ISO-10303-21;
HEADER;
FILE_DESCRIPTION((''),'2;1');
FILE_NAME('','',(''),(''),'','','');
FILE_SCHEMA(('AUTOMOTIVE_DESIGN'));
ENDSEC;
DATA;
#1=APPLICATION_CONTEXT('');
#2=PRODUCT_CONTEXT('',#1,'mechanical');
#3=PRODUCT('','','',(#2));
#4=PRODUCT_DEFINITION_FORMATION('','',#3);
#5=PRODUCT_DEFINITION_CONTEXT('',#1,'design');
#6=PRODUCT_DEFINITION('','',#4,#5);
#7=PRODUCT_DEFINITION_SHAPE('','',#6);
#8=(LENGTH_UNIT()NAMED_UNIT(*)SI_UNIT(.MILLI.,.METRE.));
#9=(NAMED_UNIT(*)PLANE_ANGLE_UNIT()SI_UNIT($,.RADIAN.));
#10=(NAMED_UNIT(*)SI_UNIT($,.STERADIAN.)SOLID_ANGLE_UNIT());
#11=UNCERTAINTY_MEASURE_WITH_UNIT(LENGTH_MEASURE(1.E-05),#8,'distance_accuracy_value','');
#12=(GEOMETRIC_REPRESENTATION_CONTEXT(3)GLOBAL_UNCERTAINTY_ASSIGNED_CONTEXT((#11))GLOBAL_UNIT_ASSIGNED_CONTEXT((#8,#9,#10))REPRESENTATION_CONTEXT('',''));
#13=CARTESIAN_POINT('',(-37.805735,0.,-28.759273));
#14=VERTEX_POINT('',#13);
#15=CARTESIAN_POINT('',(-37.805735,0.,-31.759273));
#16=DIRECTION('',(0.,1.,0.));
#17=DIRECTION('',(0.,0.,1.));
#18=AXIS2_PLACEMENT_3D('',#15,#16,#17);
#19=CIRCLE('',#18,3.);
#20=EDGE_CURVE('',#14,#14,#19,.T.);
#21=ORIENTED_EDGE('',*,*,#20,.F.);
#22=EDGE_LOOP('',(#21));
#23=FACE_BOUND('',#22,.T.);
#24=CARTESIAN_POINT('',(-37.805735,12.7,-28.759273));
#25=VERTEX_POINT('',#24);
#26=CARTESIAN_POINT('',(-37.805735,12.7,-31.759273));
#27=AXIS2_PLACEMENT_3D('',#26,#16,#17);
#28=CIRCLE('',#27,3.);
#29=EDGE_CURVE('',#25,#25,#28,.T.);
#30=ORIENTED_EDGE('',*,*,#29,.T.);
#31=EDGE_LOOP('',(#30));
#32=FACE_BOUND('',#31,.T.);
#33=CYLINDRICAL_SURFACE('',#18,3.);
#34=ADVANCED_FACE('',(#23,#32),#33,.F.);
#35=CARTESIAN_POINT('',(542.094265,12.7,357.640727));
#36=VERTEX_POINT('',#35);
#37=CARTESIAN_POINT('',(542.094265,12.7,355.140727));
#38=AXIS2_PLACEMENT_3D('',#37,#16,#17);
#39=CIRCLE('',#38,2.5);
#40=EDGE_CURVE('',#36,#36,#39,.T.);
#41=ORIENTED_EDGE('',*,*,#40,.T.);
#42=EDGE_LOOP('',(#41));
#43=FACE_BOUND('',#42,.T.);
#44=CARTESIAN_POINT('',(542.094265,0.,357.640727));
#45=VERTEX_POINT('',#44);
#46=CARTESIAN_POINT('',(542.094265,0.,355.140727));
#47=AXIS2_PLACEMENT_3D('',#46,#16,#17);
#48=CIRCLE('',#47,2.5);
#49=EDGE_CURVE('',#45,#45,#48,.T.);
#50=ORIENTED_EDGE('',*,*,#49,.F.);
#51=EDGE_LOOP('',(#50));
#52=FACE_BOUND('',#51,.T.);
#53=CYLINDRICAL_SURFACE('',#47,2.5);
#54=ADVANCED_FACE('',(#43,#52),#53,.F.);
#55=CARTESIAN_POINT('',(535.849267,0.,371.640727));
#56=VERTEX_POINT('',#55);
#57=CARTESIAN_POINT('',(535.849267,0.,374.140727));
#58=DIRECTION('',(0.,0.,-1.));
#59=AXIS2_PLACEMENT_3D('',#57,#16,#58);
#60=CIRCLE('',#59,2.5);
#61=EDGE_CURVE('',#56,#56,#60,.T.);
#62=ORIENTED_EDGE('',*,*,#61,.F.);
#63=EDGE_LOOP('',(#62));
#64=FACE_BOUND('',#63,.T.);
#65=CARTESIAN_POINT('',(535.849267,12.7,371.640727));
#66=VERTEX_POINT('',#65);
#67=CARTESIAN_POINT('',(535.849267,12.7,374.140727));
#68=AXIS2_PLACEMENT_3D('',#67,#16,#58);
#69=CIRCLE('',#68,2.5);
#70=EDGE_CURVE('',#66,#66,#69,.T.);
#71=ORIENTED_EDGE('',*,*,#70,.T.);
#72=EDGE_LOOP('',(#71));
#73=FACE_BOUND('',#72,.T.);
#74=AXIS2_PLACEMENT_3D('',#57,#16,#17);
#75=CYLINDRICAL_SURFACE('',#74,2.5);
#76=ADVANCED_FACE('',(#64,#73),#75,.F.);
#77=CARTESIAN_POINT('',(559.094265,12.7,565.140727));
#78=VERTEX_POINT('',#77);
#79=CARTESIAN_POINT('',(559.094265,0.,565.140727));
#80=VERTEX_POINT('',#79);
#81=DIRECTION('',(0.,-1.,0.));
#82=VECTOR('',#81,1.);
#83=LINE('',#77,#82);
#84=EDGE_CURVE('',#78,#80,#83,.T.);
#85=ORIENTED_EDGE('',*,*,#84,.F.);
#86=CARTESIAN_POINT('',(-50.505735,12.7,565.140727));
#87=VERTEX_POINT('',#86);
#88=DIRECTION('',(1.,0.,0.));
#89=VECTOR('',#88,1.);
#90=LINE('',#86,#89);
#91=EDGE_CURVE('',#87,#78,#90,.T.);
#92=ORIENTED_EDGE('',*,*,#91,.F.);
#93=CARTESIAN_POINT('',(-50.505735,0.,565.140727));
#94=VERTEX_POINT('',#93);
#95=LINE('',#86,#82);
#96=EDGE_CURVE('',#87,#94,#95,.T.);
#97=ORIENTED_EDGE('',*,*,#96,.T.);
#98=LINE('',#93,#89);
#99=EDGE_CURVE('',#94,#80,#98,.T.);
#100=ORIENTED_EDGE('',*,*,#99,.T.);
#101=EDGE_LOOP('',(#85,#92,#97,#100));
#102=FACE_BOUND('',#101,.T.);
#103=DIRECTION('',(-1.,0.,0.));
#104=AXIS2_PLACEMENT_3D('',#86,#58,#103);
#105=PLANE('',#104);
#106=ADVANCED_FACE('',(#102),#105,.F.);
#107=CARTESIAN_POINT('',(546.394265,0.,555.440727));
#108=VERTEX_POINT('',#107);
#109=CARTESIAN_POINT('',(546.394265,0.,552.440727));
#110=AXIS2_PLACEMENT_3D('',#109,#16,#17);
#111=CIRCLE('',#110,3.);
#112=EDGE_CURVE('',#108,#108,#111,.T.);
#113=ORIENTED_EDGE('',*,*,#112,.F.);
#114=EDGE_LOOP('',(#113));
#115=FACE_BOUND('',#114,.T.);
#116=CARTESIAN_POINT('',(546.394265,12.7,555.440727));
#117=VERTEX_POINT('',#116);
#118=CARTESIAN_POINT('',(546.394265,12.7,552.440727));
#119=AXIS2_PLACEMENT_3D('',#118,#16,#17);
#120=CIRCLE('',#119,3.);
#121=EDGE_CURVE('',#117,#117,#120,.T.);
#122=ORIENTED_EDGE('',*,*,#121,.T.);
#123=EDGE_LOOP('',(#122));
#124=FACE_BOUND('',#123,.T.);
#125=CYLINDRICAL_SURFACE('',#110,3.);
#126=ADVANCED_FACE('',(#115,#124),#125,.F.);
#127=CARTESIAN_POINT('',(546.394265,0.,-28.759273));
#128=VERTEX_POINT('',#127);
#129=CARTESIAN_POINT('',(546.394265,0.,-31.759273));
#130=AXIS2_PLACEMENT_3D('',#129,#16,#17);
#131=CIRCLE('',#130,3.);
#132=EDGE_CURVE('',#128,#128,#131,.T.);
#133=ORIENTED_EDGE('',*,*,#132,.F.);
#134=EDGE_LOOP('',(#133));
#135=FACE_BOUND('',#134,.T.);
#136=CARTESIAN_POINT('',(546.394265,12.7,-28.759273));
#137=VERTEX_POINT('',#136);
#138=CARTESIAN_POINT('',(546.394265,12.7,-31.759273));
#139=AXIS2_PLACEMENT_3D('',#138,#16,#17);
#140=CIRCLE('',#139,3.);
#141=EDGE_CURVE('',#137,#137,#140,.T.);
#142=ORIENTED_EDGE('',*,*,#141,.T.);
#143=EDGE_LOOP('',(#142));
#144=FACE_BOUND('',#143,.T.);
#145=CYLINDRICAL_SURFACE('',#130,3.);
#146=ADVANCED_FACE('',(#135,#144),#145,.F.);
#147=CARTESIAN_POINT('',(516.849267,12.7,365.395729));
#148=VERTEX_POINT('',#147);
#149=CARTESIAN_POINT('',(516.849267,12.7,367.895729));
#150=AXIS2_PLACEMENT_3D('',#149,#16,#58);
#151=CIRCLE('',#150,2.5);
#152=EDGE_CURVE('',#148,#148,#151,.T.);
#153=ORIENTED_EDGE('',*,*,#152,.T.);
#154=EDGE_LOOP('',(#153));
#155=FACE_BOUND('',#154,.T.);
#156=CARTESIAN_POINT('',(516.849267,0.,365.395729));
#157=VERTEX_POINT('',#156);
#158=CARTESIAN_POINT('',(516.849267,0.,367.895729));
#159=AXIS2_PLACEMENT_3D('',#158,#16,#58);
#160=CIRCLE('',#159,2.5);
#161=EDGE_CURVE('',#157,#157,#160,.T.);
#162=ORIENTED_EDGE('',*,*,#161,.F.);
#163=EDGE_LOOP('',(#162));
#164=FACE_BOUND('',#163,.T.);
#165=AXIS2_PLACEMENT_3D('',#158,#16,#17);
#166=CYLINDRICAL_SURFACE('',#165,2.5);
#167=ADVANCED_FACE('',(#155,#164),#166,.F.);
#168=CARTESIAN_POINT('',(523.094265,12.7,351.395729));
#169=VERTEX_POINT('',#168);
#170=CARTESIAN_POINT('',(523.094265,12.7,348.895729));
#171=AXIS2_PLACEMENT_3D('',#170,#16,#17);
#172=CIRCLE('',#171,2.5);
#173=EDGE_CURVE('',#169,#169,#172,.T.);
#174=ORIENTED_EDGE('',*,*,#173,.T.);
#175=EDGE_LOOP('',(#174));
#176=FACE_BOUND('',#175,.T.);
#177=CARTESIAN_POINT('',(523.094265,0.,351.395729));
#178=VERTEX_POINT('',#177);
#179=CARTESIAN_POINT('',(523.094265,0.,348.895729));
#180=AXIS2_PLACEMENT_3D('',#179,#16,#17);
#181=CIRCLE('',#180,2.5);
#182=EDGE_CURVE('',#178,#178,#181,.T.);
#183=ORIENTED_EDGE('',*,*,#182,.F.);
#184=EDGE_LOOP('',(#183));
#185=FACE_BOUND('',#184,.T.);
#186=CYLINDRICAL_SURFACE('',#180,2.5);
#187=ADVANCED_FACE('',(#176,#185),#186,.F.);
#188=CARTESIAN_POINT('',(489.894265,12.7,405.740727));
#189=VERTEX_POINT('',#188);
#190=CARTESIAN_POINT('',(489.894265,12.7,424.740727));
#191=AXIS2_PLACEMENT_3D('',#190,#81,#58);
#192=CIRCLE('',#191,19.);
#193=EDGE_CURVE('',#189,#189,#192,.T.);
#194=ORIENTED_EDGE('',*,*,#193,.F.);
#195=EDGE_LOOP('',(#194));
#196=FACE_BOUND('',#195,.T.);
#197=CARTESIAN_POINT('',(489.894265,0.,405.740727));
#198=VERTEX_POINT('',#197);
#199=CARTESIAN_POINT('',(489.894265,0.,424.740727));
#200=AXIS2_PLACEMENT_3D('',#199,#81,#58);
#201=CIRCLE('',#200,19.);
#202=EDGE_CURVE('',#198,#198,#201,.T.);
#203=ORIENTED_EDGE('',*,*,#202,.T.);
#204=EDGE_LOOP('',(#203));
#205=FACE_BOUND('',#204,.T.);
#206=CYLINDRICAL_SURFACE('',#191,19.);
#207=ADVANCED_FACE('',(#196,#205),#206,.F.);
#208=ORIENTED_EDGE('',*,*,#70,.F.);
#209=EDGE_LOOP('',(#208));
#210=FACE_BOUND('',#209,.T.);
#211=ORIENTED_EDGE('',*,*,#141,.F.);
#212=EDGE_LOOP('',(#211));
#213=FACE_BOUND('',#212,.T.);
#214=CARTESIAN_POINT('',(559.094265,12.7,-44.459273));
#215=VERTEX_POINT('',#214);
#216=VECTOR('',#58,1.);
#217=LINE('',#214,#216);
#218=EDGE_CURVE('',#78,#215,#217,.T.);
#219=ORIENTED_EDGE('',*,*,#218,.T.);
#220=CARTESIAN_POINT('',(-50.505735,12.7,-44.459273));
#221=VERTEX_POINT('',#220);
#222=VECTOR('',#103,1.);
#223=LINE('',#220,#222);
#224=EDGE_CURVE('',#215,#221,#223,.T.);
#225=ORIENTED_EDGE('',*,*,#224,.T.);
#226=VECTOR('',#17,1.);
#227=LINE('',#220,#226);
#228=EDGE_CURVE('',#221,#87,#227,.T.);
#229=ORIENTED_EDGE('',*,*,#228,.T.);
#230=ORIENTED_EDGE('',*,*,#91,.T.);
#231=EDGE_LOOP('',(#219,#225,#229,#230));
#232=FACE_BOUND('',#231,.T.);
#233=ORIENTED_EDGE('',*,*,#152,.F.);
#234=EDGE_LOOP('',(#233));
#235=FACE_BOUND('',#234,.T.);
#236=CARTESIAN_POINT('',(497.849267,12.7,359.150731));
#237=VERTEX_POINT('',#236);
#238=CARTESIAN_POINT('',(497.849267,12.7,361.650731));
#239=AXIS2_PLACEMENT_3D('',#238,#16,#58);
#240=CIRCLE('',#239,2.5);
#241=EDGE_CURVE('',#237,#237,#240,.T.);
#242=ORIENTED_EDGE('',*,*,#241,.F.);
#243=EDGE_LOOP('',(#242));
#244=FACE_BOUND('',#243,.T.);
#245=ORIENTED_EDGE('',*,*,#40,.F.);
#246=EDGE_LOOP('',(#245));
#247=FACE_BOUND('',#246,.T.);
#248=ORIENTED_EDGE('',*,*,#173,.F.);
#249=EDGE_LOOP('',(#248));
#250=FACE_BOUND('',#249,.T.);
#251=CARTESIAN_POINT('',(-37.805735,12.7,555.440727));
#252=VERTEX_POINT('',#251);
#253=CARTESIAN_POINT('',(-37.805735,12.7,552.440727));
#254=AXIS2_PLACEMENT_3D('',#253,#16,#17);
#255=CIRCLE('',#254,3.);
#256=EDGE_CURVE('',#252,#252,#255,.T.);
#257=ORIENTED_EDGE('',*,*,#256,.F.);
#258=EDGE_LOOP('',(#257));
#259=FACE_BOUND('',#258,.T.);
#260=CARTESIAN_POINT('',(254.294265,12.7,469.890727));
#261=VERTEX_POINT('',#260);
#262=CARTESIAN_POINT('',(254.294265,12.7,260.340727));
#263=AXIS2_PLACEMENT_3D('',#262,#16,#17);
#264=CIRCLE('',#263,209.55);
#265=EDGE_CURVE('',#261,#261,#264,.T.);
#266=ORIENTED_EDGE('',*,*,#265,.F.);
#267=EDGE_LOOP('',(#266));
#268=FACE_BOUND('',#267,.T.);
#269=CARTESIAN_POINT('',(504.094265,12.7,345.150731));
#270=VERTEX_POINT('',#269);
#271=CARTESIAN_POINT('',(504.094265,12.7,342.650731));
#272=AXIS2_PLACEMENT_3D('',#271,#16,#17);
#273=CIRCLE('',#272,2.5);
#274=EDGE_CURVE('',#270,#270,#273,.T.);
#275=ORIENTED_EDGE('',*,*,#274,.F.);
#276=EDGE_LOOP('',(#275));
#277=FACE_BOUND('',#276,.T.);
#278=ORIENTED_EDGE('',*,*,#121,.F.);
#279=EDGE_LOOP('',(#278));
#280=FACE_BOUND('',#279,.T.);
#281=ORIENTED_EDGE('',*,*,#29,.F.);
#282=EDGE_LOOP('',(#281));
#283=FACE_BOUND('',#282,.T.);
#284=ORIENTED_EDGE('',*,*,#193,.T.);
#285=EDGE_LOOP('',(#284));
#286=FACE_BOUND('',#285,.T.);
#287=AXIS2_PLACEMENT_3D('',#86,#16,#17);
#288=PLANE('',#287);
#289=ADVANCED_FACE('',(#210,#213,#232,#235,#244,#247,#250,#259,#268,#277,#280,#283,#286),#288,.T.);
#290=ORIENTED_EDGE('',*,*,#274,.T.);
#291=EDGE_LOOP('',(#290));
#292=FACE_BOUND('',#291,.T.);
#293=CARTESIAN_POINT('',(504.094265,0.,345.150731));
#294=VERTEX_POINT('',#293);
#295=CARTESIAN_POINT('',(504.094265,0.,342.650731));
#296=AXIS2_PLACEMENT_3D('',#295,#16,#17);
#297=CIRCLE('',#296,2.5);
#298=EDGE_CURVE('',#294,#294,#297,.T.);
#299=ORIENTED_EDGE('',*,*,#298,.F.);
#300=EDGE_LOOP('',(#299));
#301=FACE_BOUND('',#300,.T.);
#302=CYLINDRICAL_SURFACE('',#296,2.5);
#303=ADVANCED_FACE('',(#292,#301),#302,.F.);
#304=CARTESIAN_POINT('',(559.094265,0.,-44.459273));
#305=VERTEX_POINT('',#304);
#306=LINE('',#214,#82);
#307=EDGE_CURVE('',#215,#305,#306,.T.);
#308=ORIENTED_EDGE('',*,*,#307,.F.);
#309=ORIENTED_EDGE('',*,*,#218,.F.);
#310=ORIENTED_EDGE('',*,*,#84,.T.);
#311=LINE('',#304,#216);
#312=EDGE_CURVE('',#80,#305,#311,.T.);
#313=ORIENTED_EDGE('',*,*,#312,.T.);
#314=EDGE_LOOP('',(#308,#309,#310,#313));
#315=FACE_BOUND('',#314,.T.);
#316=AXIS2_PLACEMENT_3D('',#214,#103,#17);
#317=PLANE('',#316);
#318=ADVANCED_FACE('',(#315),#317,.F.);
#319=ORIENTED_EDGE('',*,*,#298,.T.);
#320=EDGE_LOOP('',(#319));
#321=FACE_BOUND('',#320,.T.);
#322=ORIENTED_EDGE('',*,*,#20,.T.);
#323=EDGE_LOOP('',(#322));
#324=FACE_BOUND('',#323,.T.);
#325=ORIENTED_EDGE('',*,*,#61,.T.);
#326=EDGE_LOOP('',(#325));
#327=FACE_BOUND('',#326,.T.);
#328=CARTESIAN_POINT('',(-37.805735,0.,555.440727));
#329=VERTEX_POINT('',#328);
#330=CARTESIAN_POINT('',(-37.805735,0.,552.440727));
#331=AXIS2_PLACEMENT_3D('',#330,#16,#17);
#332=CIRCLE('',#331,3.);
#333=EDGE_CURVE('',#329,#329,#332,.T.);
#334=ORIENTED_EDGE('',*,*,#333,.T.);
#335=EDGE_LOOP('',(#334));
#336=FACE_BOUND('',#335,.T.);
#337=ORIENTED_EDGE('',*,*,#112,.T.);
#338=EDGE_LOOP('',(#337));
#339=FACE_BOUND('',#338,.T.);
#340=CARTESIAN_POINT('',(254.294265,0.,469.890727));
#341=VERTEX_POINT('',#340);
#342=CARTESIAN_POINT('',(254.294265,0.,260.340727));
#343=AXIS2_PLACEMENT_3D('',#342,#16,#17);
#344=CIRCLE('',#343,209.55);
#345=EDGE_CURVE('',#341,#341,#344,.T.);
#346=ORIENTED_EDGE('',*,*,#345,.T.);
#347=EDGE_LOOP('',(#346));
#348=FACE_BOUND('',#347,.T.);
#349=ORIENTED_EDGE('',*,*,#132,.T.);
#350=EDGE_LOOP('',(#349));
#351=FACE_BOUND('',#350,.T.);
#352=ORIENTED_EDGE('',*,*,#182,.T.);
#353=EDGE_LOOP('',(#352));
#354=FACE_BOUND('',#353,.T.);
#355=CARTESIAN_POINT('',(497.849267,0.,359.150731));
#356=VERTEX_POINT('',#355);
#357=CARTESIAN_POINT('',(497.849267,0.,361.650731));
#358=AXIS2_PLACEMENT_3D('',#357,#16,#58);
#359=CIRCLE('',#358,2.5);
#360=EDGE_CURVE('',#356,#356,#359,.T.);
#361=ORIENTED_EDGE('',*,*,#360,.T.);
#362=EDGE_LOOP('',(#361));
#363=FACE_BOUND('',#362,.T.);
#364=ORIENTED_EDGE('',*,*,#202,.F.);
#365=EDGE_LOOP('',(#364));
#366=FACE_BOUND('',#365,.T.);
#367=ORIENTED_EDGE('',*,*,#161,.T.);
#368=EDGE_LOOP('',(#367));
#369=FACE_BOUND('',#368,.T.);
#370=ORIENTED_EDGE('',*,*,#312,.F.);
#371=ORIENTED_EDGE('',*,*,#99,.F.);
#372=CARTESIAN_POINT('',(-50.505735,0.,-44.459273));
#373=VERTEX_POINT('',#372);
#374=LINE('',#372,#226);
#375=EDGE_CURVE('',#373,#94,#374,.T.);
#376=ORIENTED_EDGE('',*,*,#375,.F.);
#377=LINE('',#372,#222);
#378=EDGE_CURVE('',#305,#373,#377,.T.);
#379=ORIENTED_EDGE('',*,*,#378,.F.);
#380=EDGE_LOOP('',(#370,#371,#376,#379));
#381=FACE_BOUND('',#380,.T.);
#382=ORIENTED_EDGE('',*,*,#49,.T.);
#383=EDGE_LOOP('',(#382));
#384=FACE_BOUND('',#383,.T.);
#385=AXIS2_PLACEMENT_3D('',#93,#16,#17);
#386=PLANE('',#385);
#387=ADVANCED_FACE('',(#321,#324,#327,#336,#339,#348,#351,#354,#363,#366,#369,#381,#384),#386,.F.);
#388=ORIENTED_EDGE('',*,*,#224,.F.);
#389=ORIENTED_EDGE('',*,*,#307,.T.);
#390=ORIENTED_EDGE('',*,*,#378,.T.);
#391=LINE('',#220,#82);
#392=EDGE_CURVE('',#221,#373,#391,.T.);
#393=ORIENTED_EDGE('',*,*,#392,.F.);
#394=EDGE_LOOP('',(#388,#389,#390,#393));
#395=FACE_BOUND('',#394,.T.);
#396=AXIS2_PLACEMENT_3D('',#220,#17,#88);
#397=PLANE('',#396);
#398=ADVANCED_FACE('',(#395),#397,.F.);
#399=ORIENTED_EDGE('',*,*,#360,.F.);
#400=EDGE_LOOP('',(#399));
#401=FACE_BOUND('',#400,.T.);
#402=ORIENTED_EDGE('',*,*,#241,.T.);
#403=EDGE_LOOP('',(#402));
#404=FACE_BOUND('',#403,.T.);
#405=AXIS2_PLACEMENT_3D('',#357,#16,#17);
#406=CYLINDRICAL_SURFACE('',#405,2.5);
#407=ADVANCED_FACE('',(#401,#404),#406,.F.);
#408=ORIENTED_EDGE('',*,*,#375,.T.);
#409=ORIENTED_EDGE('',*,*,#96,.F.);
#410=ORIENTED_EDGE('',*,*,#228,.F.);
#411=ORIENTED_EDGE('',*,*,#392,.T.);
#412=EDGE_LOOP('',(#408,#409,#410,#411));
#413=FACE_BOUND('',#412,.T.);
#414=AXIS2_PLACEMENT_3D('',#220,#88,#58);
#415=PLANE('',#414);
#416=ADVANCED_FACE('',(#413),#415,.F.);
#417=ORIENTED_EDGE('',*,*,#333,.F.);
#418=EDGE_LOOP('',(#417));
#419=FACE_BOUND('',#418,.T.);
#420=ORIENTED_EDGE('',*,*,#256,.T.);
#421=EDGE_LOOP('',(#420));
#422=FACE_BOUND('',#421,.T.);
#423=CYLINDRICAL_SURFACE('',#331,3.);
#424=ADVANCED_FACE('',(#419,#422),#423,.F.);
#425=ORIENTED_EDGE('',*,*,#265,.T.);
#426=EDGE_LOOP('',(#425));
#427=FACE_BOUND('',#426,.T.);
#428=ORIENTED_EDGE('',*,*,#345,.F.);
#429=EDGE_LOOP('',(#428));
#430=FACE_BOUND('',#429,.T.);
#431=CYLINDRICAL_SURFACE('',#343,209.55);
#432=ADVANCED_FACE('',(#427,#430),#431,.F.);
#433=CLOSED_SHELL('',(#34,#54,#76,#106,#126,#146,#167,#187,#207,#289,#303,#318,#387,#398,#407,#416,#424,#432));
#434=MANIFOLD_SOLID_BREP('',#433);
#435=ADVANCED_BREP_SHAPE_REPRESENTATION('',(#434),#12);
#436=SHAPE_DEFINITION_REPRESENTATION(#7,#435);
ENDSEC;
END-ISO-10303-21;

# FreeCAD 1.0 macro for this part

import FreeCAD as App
import Part
import Sketcher
from FreeCAD import Vector


def add_polygon(sketch, points):
    """Adds a closed chain of lines whose ends are joined by coincident constraints."""
    first, n = sketch.GeometryCount, len(points)
    for a, b in zip(points, points[1:] + points[:1]):
        sketch.addGeometry(Part.LineSegment(App.Vector(*a, 0), App.Vector(*b, 0)), False)
    for i in range(n):
        sketch.addConstraint(Sketcher.Constraint("Coincident", first + i, 2, first + (i + 1) % n, 1))

doc = App.newDocument("Part")
body = doc.addObject("PartDesign::Body", "Body")

# Sketch on XZ plane
sketch1 = body.newObject("Sketcher::SketchObject", "Sketch")
sketch1.AttachmentSupport = (doc.getObject("XZ_Plane"), [""])
sketch1.MapMode = "FlatFace"
add_polygon(sketch1, [(-51, -44), (-51, 565), (559, 565), (559, -44)])  # lines 0-3
sketch1.addConstraint(Sketcher.Constraint("Vertical", 0))
sketch1.addConstraint(Sketcher.Constraint("Horizontal", 1))
sketch1.addConstraint(Sketcher.Constraint("Vertical", 2))
sketch1.addConstraint(Sketcher.Constraint("Horizontal", 3))
sketch1.addConstraint(Sketcher.Constraint("Equal", 3, 0))
sketch1.addConstraint(Sketcher.Constraint("DistanceX", 1, 1, 1, 2, 609.6))
sketch1.addConstraint(Sketcher.Constraint("DistanceX", 0, 2, -1, 1, 50.505735))
sketch1.addConstraint(Sketcher.Constraint("DistanceY", -1, 1, 0, 2, 565.140727))
pad1 = body.newObject("PartDesign::Pad", "Pad")
pad1.Profile = sketch1
pad1.Length = 12.7
pad1.Reversed = True

# Sketch on XZ plane
sketch2 = body.newObject("Sketcher::SketchObject", "Sketch001")
sketch2.AttachmentSupport = (doc.getObject("XZ_Plane"), [""])
sketch2.MapMode = "FlatFace"
sketch2.AttachmentOffset = App.Placement(Vector(0, 0, -12.7), App.Rotation())
sketch2.addGeometry(Part.Circle(Vector(254, 260, 0), Vector(0, 0, 1), 210), False)
sketch2.addConstraint(Sketcher.Constraint("Diameter", 0, 419.1))
sketch2.addConstraint(Sketcher.Constraint("DistanceX", -1, 1, 0, 3, 254.294265))
sketch2.addConstraint(Sketcher.Constraint("DistanceY", -1, 1, 0, 3, 260.340727))
pocket1 = body.newObject("PartDesign::Pocket", "Pocket")
pocket1.Profile = sketch2
pocket1.Type = "ThroughAll"
pocket1.Reversed = True

# Sketch on XZ plane
sketch3 = body.newObject("Sketcher::SketchObject", "Sketch002")
sketch3.AttachmentSupport = (doc.getObject("XZ_Plane"), [""])
sketch3.MapMode = "FlatFace"
sketch3.addGeometry(Part.Circle(Vector(490, 425, 0), Vector(0, 0, 1), 19), False)
sketch3.addConstraint(Sketcher.Constraint("Diameter", 0, 38.0))
sketch3.addConstraint(Sketcher.Constraint("DistanceX", -1, 1, 0, 3, 489.894265))
sketch3.addConstraint(Sketcher.Constraint("DistanceY", -1, 1, 0, 3, 424.740727))
pocket2 = body.newObject("PartDesign::Pocket", "Pocket001")
pocket2.Profile = sketch3
pocket2.Type = "ThroughAll"

# Sketch on XZ plane
sketch4 = body.newObject("Sketcher::SketchObject", "Sketch003")
sketch4.AttachmentSupport = (doc.getObject("XZ_Plane"), [""])
sketch4.MapMode = "FlatFace"
sketch4.AttachmentOffset = App.Placement(Vector(0, 0, -12.7), App.Rotation())
sketch4.addGeometry(Part.Circle(Vector(542.1, 355.1, 0), Vector(0, 0, 1), 2.5), False)
sketch4.addGeometry(Part.Circle(Vector(523.1, 348.9, 0), Vector(0, 0, 1), 2.5), False)
sketch4.addGeometry(Part.Circle(Vector(504.1, 342.7, 0), Vector(0, 0, 1), 2.5), False)
sketch4.addGeometry(Part.Circle(Vector(497.8, 361.7, 0), Vector(0, 0, 1), 2.5), False)
sketch4.addGeometry(Part.Circle(Vector(516.8, 367.9, 0), Vector(0, 0, 1), 2.5), False)
sketch4.addGeometry(Part.Circle(Vector(535.8, 374.1, 0), Vector(0, 0, 1), 2.5), False)
sketch4.addConstraint(Sketcher.Constraint("Equal", 0, 1))
sketch4.addConstraint(Sketcher.Constraint("Equal", 1, 2))
sketch4.addConstraint(Sketcher.Constraint("Equal", 2, 3))
sketch4.addConstraint(Sketcher.Constraint("Equal", 3, 4))
sketch4.addConstraint(Sketcher.Constraint("Equal", 4, 5))
sketch4.addConstraint(Sketcher.Constraint("Diameter", 0, 5.0))
sketch4.addConstraint(Sketcher.Constraint("DistanceX", 1, 3, 0, 3, 19.0))
sketch4.addConstraint(Sketcher.Constraint("DistanceX", 2, 3, 1, 3, 19.0))
sketch4.addConstraint(Sketcher.Constraint("DistanceY", 2, 3, 3, 3, 19.0))
sketch4.addConstraint(Sketcher.Constraint("DistanceX", 3, 3, 4, 3, 19.0))
sketch4.addConstraint(Sketcher.Constraint("DistanceY", 1, 3, 4, 3, 19.0))
sketch4.addConstraint(Sketcher.Constraint("DistanceY", 0, 3, 5, 3, 19.0))
sketch4.addConstraint(Sketcher.Constraint("DistanceX", 4, 3, 5, 3, 19.0))
sketch4.addConstraint(Sketcher.Constraint("DistanceY", -1, 1, 1, 3, 348.895729))
sketch4.addConstraint(Sketcher.Constraint("DistanceY", -1, 1, 2, 3, 342.650731))
sketch4.addConstraint(Sketcher.Constraint("DistanceX", -1, 1, 0, 3, 542.094265))
sketch4.addConstraint(Sketcher.Constraint("DistanceY", -1, 1, 0, 3, 355.140727))
sketch4.addConstraint(Sketcher.Constraint("DistanceX", -1, 1, 3, 3, 497.849267))
pocket3 = body.newObject("PartDesign::Pocket", "Pocket002")
pocket3.Profile = sketch4
pocket3.Type = "ThroughAll"
pocket3.Reversed = True

# Sketch on XZ plane
sketch5 = body.newObject("Sketcher::SketchObject", "Sketch004")
sketch5.AttachmentSupport = (doc.getObject("XZ_Plane"), [""])
sketch5.MapMode = "FlatFace"
sketch5.AttachmentOffset = App.Placement(Vector(0, 0, -12.7), App.Rotation())
sketch5.addGeometry(Part.Circle(Vector(546.4, 552.4, 0), Vector(0, 0, 1), 3), False)
sketch5.addGeometry(Part.Circle(Vector(-37.8, 552.4, 0), Vector(0, 0, 1), 3), False)
sketch5.addGeometry(Part.Circle(Vector(-37.8, -31.8, 0), Vector(0, 0, 1), 3), False)
sketch5.addGeometry(Part.Circle(Vector(546.4, -31.8, 0), Vector(0, 0, 1), 3), False)
sketch5.addConstraint(Sketcher.Constraint("Equal", 0, 1))
sketch5.addConstraint(Sketcher.Constraint("Equal", 1, 2))
sketch5.addConstraint(Sketcher.Constraint("Equal", 2, 3))
sketch5.addConstraint(Sketcher.Constraint("Horizontal", 0, 3, 1, 3))
sketch5.addConstraint(Sketcher.Constraint("Horizontal", 2, 3, 3, 3))
sketch5.addConstraint(Sketcher.Constraint("Vertical", 1, 3, 2, 3))
sketch5.addConstraint(Sketcher.Constraint("Vertical", 0, 3, 3, 3))
sketch5.addConstraint(Sketcher.Constraint("Diameter", 0, 6.0))
sketch5.addConstraint(Sketcher.Constraint("DistanceX", 1, 3, 0, 3, 584.2))
sketch5.addConstraint(Sketcher.Constraint("DistanceY", 2, 3, 1, 3, 584.2))
sketch5.addConstraint(Sketcher.Constraint("DistanceX", -1, 1, 0, 3, 546.394265))
sketch5.addConstraint(Sketcher.Constraint("DistanceY", -1, 1, 0, 3, 552.440727))
pocket4 = body.newObject("PartDesign::Pocket", "Pocket003")
pocket4.Profile = sketch5
pocket4.Type = "ThroughAll"
pocket4.Reversed = True

doc.recompute()
